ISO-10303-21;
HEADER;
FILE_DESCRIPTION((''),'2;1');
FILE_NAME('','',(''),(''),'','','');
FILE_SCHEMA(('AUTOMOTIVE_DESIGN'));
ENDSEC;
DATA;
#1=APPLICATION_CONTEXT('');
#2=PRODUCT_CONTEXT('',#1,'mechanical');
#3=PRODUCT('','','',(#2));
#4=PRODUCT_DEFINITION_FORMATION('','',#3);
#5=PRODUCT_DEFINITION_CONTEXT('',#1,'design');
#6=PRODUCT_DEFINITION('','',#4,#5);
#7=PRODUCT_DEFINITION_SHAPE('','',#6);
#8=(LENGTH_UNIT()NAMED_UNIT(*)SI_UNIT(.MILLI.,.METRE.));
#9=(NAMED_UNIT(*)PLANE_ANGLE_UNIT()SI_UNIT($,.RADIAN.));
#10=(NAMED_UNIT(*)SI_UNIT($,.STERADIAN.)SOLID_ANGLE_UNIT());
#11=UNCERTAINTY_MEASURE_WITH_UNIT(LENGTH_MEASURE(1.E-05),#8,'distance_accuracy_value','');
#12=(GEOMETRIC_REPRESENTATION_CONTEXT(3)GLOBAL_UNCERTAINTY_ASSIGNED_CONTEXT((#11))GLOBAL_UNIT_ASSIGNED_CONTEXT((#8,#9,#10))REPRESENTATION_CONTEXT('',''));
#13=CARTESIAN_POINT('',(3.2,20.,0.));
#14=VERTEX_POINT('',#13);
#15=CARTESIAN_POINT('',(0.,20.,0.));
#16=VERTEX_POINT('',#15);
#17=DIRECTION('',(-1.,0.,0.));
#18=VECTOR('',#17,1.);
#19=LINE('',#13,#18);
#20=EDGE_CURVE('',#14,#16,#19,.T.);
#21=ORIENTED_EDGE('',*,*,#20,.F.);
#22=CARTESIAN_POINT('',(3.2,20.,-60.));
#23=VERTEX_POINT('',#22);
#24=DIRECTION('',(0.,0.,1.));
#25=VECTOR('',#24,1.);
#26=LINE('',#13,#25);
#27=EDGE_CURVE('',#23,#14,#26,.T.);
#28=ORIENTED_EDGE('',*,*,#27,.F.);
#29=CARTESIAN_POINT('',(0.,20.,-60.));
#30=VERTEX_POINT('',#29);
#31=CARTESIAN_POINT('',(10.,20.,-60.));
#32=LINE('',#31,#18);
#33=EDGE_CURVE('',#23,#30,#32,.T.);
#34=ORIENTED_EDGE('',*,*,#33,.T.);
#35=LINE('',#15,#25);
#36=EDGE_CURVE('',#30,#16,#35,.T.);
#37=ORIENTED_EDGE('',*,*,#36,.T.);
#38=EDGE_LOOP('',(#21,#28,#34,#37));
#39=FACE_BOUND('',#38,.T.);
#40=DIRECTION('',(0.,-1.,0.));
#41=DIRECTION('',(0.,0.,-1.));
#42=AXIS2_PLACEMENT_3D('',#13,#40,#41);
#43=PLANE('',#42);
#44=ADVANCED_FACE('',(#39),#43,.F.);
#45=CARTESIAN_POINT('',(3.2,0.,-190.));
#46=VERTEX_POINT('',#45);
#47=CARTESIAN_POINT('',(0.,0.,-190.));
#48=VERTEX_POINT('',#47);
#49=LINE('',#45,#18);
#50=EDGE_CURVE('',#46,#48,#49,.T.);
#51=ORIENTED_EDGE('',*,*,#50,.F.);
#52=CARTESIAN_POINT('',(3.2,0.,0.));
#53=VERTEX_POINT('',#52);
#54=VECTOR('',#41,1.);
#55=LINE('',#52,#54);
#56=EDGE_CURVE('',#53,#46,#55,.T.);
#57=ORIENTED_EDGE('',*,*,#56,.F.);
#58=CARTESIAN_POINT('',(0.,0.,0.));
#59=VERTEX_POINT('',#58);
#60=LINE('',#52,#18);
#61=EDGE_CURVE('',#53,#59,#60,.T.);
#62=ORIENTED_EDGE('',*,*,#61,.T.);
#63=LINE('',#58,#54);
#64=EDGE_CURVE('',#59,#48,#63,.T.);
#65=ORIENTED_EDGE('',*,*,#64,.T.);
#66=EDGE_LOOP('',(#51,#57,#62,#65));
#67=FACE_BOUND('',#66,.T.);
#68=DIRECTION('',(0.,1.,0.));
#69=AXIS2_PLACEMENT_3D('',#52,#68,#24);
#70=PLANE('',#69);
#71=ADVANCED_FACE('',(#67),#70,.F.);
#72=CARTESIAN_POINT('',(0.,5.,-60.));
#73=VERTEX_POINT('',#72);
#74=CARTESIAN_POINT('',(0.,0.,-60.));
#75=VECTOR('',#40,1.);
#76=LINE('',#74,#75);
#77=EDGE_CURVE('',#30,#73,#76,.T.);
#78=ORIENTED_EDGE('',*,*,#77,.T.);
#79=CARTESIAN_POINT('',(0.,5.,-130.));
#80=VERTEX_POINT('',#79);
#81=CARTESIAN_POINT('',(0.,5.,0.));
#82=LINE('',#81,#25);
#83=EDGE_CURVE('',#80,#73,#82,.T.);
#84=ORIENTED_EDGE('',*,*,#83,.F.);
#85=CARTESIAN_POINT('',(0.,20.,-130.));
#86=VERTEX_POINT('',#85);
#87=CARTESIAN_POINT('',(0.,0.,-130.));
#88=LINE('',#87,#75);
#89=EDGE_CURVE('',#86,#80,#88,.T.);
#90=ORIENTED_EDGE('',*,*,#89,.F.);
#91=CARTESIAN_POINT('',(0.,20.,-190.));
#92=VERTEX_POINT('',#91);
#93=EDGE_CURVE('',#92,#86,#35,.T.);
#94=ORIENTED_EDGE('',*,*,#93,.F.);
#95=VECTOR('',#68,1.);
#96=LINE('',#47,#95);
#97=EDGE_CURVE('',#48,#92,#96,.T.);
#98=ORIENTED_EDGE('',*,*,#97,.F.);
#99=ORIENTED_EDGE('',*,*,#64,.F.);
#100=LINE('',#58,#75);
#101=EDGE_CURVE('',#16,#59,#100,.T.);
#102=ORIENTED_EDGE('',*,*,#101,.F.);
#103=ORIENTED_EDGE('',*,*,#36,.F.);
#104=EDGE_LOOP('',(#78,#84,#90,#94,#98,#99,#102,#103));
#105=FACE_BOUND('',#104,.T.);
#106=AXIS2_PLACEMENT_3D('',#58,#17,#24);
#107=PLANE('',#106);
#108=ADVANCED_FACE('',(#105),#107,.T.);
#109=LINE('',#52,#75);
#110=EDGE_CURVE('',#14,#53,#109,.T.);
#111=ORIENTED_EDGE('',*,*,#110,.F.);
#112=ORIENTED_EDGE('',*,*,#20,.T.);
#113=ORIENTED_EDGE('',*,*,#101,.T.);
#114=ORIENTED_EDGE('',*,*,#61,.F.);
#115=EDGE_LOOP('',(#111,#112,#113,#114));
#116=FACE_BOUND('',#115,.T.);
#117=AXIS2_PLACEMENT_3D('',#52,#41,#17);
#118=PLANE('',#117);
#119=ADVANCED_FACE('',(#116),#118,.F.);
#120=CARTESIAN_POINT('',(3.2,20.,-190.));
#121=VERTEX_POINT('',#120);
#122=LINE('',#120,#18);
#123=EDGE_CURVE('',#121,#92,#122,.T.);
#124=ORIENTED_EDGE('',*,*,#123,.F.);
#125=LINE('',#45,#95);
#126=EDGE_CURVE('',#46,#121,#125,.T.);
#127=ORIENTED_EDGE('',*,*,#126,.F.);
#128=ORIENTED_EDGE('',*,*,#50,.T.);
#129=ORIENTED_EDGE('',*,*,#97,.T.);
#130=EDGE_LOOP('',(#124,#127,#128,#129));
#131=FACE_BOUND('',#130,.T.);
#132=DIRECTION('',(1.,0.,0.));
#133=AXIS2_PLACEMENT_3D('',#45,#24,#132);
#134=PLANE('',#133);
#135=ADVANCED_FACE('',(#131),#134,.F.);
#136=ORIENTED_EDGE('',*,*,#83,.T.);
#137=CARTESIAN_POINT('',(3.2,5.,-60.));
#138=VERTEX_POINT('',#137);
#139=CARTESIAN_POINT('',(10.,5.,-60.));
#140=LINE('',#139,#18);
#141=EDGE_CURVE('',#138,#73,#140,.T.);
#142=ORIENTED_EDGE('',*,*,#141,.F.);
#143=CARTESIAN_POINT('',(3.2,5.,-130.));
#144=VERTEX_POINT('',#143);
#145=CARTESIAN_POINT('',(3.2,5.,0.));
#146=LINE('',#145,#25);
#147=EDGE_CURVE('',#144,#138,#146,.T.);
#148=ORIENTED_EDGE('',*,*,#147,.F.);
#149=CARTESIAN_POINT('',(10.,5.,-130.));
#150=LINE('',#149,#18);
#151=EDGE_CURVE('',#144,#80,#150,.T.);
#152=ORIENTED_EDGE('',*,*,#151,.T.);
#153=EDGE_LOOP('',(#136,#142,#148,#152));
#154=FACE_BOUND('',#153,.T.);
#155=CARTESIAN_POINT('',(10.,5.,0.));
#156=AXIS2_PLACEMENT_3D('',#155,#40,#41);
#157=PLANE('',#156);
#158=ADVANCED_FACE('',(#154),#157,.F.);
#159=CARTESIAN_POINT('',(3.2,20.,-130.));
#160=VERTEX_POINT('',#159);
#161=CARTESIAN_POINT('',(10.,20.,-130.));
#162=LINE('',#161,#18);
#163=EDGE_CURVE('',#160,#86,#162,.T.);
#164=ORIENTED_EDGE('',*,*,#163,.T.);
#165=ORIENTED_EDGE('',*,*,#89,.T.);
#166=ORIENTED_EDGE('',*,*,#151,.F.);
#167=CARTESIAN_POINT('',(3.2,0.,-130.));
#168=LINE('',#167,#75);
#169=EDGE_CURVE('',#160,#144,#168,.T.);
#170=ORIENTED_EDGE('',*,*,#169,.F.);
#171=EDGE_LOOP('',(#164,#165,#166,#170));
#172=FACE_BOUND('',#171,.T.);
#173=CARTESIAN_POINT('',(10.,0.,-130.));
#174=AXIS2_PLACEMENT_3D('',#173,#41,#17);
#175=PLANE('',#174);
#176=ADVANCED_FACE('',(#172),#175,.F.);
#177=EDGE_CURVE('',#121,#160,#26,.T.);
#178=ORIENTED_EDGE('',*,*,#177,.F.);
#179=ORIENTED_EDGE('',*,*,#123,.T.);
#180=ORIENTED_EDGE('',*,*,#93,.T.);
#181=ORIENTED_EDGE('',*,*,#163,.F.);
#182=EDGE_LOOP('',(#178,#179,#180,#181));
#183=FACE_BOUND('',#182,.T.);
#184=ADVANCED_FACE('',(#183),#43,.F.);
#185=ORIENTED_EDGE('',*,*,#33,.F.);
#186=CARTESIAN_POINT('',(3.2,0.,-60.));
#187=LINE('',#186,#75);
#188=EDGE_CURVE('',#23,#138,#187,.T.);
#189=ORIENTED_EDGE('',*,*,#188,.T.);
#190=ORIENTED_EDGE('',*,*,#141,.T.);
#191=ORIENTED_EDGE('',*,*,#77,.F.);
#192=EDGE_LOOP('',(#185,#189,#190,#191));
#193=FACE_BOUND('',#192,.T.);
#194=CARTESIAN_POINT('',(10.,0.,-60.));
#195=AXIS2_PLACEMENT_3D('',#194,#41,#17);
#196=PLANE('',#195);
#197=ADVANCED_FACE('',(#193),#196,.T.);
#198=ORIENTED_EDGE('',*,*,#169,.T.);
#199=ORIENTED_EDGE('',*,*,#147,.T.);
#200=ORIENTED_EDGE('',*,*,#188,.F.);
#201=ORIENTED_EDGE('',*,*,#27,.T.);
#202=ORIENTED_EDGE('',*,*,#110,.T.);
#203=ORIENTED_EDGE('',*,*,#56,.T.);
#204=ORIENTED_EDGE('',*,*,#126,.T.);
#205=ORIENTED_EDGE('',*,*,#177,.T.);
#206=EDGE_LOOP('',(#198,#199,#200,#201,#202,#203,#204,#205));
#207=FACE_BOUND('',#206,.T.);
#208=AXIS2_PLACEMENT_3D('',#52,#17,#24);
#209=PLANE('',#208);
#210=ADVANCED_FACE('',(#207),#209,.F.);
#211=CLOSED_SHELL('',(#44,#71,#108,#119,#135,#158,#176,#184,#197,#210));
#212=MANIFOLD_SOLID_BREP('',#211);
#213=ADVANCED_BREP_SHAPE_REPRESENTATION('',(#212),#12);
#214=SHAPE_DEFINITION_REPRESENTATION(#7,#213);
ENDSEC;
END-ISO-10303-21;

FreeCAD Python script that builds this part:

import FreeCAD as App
import Part
import Sketcher
from FreeCAD import Vector

doc = App.newDocument("Part")
body = doc.addObject("PartDesign::Body", "Body")

# Sketch on YZ plane
sketch1 = doc.addObject("Sketcher::SketchObject", "Sketch")
body.addObject(sketch1)
sketch1.AttachmentSupport = (doc.YZ_Plane, [""])
sketch1.MapMode = "FlatFace"
sketch1.addGeometry(Part.LineSegment(Vector(20, 0, 0), Vector(0, 0, 0)), False)
sketch1.addGeometry(Part.LineSegment(Vector(0, 0, 0), Vector(0, -190, 0)), False)
sketch1.addGeometry(Part.LineSegment(Vector(0, -190, 0), Vector(20, -190, 0)), False)
sketch1.addGeometry(Part.LineSegment(Vector(20, -190, 0), Vector(20, 0, 0)), False)
sketch1.addConstraint(Sketcher.Constraint("Coincident", 0, 2, 1, 1))
sketch1.addConstraint(Sketcher.Constraint("Coincident", 1, 2, 2, 1))
sketch1.addConstraint(Sketcher.Constraint("Coincident", 2, 2, 3, 1))
sketch1.addConstraint(Sketcher.Constraint("Coincident", 3, 2, 0, 1))
sketch1.addConstraint(Sketcher.Constraint("Horizontal", 0))
sketch1.addConstraint(Sketcher.Constraint("Vertical", 1))
sketch1.addConstraint(Sketcher.Constraint("Horizontal", 2))
sketch1.addConstraint(Sketcher.Constraint("Vertical", 3))
sketch1.addConstraint(Sketcher.Constraint("Coincident", 0, 2, -1, 1))
sketch1.addConstraint(Sketcher.Constraint("DistanceX", 0, 2, 0, 1, 20.0))
sketch1.addConstraint(Sketcher.Constraint("DistanceY", 1, 2, 1, 1, 190.0))
pad1 = doc.addObject("PartDesign::Pad", "Pad")
body.addObject(pad1)
pad1.Profile = sketch1
pad1.Length = 3.2

# Sketch on YZ plane
sketch2 = doc.addObject("Sketcher::SketchObject", "Sketch001")
body.addObject(sketch2)
sketch2.AttachmentSupport = (doc.YZ_Plane, [""])
sketch2.MapMode = "FlatFace"
sketch2.addGeometry(Part.LineSegment(Vector(20, -130, 0), Vector(5, -130, 0)), False)
sketch2.addGeometry(Part.LineSegment(Vector(5, -130, 0), Vector(5, -60, 0)), False)
sketch2.addGeometry(Part.LineSegment(Vector(5, -60, 0), Vector(20, -60, 0)), False)
sketch2.addGeometry(Part.LineSegment(Vector(20, -60, 0), Vector(20, -130, 0)), False)
sketch2.addConstraint(Sketcher.Constraint("Coincident", 0, 2, 1, 1))
sketch2.addConstraint(Sketcher.Constraint("Coincident", 1, 2, 2, 1))
sketch2.addConstraint(Sketcher.Constraint("Coincident", 2, 2, 3, 1))
sketch2.addConstraint(Sketcher.Constraint("Coincident", 3, 2, 0, 1))
sketch2.addConstraint(Sketcher.Constraint("Horizontal", 0))
sketch2.addConstraint(Sketcher.Constraint("Vertical", 1))
sketch2.addConstraint(Sketcher.Constraint("Horizontal", 2))
sketch2.addConstraint(Sketcher.Constraint("Vertical", 3))
sketch2.addConstraint(Sketcher.Constraint("DistanceX", 0, 2, 0, 1, 15.0))
sketch2.addConstraint(Sketcher.Constraint("DistanceY", 1, 1, 1, 2, 70.0))
sketch2.addConstraint(Sketcher.Constraint("DistanceX", -1, 1, 0, 2, 5.0))
sketch2.addConstraint(Sketcher.Constraint("DistanceY", 0, 2, -1, 1, 130.0))
pocket1 = doc.addObject("PartDesign::Pocket", "Pocket")
body.addObject(pocket1)
pocket1.Profile = sketch2
pocket1.Length = 10
pocket1.Reversed = True

doc.recompute()
